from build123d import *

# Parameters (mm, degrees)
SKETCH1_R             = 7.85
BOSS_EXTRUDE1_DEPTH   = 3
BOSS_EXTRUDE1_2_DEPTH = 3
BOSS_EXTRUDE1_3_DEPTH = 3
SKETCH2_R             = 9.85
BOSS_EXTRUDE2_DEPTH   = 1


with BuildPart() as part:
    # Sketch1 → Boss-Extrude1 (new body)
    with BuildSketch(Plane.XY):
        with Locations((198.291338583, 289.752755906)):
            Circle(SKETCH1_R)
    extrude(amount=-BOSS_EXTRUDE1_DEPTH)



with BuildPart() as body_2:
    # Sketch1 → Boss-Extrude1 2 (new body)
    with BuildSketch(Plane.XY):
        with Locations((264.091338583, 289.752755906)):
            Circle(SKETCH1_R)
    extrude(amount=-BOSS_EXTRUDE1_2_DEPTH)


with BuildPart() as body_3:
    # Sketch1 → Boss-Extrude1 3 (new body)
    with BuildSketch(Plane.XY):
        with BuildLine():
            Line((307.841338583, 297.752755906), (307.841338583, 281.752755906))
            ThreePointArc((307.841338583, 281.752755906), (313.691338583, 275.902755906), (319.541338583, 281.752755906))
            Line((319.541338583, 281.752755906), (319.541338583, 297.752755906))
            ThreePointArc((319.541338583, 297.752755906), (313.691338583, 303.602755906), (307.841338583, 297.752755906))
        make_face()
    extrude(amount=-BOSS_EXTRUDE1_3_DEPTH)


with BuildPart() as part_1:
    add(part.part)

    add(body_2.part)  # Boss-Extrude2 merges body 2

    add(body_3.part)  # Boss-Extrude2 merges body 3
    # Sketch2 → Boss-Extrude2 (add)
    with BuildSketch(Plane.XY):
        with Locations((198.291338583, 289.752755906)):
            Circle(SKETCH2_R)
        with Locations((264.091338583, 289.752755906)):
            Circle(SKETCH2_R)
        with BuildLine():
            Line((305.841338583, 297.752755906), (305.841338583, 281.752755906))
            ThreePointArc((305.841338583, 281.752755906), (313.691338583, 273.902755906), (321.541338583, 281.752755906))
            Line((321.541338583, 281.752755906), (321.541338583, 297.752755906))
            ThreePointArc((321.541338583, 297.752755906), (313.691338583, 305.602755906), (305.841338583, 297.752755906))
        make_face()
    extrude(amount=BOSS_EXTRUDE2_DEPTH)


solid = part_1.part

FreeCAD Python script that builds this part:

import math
import FreeCAD as App
import Part
import Sketcher

doc = App.newDocument("Part")
body = doc.addObject("PartDesign::Body", "Body")

# Sketch on XY plane
sketch1 = body.newObject("Sketcher::SketchObject", "Sketch")
sketch1.AttachmentSupport = (doc.getObject("XY_Plane"), [""])
sketch1.MapMode = "FlatFace"
sketch1.addGeometry(Part.Circle(App.Vector(198, 290, 0), App.Vector(0, 0, 1), 8), False)
sketch1.addConstraint(Sketcher.Constraint("Diameter", 0, 15.7))
sketch1.addConstraint(Sketcher.Constraint("DistanceX", -1, 1, 0, 3, 198.291339))
sketch1.addConstraint(Sketcher.Constraint("DistanceY", -1, 1, 0, 3, 289.752756))
pad1 = body.newObject("PartDesign::Pad", "Pad")
pad1.Profile = sketch1
pad1.Length = 3
pad1.Reversed = True
body2 = doc.addObject("PartDesign::Body", "Body001")

# Sketch on XY plane
sketch2 = body2.newObject("Sketcher::SketchObject", "Sketch001")
sketch2.AttachmentSupport = (doc.getObject("XY_Plane001"), [""])
sketch2.MapMode = "FlatFace"
sketch2.addGeometry(Part.Circle(App.Vector(264, 290, 0), App.Vector(0, 0, 1), 8), False)
sketch2.addConstraint(Sketcher.Constraint("Diameter", 0, 15.7))
sketch2.addConstraint(Sketcher.Constraint("DistanceX", -1, 1, 0, 3, 264.091339))
sketch2.addConstraint(Sketcher.Constraint("DistanceY", -1, 1, 0, 3, 289.752756))
pad2 = body2.newObject("PartDesign::Pad", "Pad001")
pad2.Profile = sketch2
pad2.Length = 3
pad2.Reversed = True
body3 = doc.addObject("PartDesign::Body", "Body002")

# Sketch on XY plane
sketch3 = body3.newObject("Sketcher::SketchObject", "Sketch002")
sketch3.AttachmentSupport = (doc.getObject("XY_Plane002"), [""])
sketch3.MapMode = "FlatFace"
sketch3.addGeometry(Part.LineSegment(App.Vector(308, 298, 0), App.Vector(308, 282, 0)), False)
sketch3.addGeometry(Part.ArcOfCircle(Part.Circle(App.Vector(314, 282, 0), App.Vector(0, 0, 1), 6), math.radians(180), math.radians(360)), False)
sketch3.addGeometry(Part.LineSegment(App.Vector(320, 282, 0), App.Vector(320, 298, 0)), False)
sketch3.addGeometry(Part.ArcOfCircle(Part.Circle(App.Vector(314, 298, 0), App.Vector(0, 0, 1), 6), math.radians(0), math.radians(180)), False)
sketch3.addConstraint(Sketcher.Constraint("Tangent", 0, 2, 1, 1))
sketch3.addConstraint(Sketcher.Constraint("Tangent", 1, 2, 2, 1))
sketch3.addConstraint(Sketcher.Constraint("Tangent", 2, 2, 3, 1))
sketch3.addConstraint(Sketcher.Constraint("Tangent", 3, 2, 0, 1))
sketch3.addConstraint(Sketcher.Constraint("Vertical", 0))
sketch3.addConstraint(Sketcher.Constraint("Vertical", 2))
sketch3.addConstraint(Sketcher.Constraint("DistanceY", 0, 2, 0, 1, 16.0))
sketch3.addConstraint(Sketcher.Constraint("Radius", 1, 5.85))
sketch3.addConstraint(Sketcher.Constraint("DistanceX", -1, 1, 1, 3, 313.691339))
sketch3.addConstraint(Sketcher.Constraint("DistanceY", -1, 1, 1, 3, 281.752756))
pad3 = body3.newObject("PartDesign::Pad", "Pad002")
pad3.Profile = sketch3
pad3.Length = 3
pad3.Reversed = True
body.AllowCompound = True
doc.recompute()

boolean = body.newObject("PartDesign::Boolean", "Boolean")
boolean.Type = "Fuse"
boolean.addObjects([body2])
doc.recompute()

boolean2 = body.newObject("PartDesign::Boolean", "Boolean001")
boolean2.Type = "Fuse"
boolean2.addObjects([body3])

# Sketch on XY plane
sketch4 = body.newObject("Sketcher::SketchObject", "Sketch003")
sketch4.AttachmentSupport = (doc.getObject("XY_Plane"), [""])
sketch4.MapMode = "FlatFace"
sketch4.addGeometry(Part.Circle(App.Vector(198, 290, 0), App.Vector(0, 0, 1), 10), False)
sketch4.addGeometry(Part.Circle(App.Vector(264, 290, 0), App.Vector(0, 0, 1), 10), False)
sketch4.addGeometry(Part.LineSegment(App.Vector(306, 298, 0), App.Vector(306, 282, 0)), False)
sketch4.addGeometry(Part.ArcOfCircle(Part.Circle(App.Vector(314, 282, 0), App.Vector(0, 0, 1), 8), math.radians(180), math.radians(360)), False)
sketch4.addGeometry(Part.LineSegment(App.Vector(322, 282, 0), App.Vector(322, 298, 0)), False)
sketch4.addGeometry(Part.ArcOfCircle(Part.Circle(App.Vector(314, 298, 0), App.Vector(0, 0, 1), 8), math.radians(0), math.radians(180)), False)
sketch4.addConstraint(Sketcher.Constraint("Tangent", 2, 2, 3, 1))
sketch4.addConstraint(Sketcher.Constraint("Tangent", 3, 2, 4, 1))
sketch4.addConstraint(Sketcher.Constraint("Tangent", 4, 2, 5, 1))
sketch4.addConstraint(Sketcher.Constraint("Tangent", 5, 2, 2, 1))
sketch4.addConstraint(Sketcher.Constraint("Vertical", 2))
sketch4.addConstraint(Sketcher.Constraint("Vertical", 4))
sketch4.addConstraint(Sketcher.Constraint("Equal", 0, 1))
sketch4.addConstraint(Sketcher.Constraint("Horizontal", 0, 3, 1, 3))
sketch4.addConstraint(Sketcher.Constraint("Diameter", 0, 19.7))
sketch4.addConstraint(Sketcher.Constraint("DistanceY", 2, 2, 2, 1, 16.0))
sketch4.addConstraint(Sketcher.Constraint("Radius", 3, 7.85))
sketch4.addConstraint(Sketcher.Constraint("DistanceY", 3, 3, 1, 3, 8.0))
sketch4.addConstraint(Sketcher.Constraint("DistanceX", 0, 3, 1, 3, 65.8))
sketch4.addConstraint(Sketcher.Constraint("DistanceX", 1, 3, 3, 3, 49.6))
sketch4.addConstraint(Sketcher.Constraint("DistanceX", -1, 1, 0, 3, 198.291339))
sketch4.addConstraint(Sketcher.Constraint("DistanceY", -1, 1, 0, 3, 289.752756))
pad4 = body.newObject("PartDesign::Pad", "Pad003")
pad4.Profile = sketch4
pad4.Length = 1

doc.recompute()
